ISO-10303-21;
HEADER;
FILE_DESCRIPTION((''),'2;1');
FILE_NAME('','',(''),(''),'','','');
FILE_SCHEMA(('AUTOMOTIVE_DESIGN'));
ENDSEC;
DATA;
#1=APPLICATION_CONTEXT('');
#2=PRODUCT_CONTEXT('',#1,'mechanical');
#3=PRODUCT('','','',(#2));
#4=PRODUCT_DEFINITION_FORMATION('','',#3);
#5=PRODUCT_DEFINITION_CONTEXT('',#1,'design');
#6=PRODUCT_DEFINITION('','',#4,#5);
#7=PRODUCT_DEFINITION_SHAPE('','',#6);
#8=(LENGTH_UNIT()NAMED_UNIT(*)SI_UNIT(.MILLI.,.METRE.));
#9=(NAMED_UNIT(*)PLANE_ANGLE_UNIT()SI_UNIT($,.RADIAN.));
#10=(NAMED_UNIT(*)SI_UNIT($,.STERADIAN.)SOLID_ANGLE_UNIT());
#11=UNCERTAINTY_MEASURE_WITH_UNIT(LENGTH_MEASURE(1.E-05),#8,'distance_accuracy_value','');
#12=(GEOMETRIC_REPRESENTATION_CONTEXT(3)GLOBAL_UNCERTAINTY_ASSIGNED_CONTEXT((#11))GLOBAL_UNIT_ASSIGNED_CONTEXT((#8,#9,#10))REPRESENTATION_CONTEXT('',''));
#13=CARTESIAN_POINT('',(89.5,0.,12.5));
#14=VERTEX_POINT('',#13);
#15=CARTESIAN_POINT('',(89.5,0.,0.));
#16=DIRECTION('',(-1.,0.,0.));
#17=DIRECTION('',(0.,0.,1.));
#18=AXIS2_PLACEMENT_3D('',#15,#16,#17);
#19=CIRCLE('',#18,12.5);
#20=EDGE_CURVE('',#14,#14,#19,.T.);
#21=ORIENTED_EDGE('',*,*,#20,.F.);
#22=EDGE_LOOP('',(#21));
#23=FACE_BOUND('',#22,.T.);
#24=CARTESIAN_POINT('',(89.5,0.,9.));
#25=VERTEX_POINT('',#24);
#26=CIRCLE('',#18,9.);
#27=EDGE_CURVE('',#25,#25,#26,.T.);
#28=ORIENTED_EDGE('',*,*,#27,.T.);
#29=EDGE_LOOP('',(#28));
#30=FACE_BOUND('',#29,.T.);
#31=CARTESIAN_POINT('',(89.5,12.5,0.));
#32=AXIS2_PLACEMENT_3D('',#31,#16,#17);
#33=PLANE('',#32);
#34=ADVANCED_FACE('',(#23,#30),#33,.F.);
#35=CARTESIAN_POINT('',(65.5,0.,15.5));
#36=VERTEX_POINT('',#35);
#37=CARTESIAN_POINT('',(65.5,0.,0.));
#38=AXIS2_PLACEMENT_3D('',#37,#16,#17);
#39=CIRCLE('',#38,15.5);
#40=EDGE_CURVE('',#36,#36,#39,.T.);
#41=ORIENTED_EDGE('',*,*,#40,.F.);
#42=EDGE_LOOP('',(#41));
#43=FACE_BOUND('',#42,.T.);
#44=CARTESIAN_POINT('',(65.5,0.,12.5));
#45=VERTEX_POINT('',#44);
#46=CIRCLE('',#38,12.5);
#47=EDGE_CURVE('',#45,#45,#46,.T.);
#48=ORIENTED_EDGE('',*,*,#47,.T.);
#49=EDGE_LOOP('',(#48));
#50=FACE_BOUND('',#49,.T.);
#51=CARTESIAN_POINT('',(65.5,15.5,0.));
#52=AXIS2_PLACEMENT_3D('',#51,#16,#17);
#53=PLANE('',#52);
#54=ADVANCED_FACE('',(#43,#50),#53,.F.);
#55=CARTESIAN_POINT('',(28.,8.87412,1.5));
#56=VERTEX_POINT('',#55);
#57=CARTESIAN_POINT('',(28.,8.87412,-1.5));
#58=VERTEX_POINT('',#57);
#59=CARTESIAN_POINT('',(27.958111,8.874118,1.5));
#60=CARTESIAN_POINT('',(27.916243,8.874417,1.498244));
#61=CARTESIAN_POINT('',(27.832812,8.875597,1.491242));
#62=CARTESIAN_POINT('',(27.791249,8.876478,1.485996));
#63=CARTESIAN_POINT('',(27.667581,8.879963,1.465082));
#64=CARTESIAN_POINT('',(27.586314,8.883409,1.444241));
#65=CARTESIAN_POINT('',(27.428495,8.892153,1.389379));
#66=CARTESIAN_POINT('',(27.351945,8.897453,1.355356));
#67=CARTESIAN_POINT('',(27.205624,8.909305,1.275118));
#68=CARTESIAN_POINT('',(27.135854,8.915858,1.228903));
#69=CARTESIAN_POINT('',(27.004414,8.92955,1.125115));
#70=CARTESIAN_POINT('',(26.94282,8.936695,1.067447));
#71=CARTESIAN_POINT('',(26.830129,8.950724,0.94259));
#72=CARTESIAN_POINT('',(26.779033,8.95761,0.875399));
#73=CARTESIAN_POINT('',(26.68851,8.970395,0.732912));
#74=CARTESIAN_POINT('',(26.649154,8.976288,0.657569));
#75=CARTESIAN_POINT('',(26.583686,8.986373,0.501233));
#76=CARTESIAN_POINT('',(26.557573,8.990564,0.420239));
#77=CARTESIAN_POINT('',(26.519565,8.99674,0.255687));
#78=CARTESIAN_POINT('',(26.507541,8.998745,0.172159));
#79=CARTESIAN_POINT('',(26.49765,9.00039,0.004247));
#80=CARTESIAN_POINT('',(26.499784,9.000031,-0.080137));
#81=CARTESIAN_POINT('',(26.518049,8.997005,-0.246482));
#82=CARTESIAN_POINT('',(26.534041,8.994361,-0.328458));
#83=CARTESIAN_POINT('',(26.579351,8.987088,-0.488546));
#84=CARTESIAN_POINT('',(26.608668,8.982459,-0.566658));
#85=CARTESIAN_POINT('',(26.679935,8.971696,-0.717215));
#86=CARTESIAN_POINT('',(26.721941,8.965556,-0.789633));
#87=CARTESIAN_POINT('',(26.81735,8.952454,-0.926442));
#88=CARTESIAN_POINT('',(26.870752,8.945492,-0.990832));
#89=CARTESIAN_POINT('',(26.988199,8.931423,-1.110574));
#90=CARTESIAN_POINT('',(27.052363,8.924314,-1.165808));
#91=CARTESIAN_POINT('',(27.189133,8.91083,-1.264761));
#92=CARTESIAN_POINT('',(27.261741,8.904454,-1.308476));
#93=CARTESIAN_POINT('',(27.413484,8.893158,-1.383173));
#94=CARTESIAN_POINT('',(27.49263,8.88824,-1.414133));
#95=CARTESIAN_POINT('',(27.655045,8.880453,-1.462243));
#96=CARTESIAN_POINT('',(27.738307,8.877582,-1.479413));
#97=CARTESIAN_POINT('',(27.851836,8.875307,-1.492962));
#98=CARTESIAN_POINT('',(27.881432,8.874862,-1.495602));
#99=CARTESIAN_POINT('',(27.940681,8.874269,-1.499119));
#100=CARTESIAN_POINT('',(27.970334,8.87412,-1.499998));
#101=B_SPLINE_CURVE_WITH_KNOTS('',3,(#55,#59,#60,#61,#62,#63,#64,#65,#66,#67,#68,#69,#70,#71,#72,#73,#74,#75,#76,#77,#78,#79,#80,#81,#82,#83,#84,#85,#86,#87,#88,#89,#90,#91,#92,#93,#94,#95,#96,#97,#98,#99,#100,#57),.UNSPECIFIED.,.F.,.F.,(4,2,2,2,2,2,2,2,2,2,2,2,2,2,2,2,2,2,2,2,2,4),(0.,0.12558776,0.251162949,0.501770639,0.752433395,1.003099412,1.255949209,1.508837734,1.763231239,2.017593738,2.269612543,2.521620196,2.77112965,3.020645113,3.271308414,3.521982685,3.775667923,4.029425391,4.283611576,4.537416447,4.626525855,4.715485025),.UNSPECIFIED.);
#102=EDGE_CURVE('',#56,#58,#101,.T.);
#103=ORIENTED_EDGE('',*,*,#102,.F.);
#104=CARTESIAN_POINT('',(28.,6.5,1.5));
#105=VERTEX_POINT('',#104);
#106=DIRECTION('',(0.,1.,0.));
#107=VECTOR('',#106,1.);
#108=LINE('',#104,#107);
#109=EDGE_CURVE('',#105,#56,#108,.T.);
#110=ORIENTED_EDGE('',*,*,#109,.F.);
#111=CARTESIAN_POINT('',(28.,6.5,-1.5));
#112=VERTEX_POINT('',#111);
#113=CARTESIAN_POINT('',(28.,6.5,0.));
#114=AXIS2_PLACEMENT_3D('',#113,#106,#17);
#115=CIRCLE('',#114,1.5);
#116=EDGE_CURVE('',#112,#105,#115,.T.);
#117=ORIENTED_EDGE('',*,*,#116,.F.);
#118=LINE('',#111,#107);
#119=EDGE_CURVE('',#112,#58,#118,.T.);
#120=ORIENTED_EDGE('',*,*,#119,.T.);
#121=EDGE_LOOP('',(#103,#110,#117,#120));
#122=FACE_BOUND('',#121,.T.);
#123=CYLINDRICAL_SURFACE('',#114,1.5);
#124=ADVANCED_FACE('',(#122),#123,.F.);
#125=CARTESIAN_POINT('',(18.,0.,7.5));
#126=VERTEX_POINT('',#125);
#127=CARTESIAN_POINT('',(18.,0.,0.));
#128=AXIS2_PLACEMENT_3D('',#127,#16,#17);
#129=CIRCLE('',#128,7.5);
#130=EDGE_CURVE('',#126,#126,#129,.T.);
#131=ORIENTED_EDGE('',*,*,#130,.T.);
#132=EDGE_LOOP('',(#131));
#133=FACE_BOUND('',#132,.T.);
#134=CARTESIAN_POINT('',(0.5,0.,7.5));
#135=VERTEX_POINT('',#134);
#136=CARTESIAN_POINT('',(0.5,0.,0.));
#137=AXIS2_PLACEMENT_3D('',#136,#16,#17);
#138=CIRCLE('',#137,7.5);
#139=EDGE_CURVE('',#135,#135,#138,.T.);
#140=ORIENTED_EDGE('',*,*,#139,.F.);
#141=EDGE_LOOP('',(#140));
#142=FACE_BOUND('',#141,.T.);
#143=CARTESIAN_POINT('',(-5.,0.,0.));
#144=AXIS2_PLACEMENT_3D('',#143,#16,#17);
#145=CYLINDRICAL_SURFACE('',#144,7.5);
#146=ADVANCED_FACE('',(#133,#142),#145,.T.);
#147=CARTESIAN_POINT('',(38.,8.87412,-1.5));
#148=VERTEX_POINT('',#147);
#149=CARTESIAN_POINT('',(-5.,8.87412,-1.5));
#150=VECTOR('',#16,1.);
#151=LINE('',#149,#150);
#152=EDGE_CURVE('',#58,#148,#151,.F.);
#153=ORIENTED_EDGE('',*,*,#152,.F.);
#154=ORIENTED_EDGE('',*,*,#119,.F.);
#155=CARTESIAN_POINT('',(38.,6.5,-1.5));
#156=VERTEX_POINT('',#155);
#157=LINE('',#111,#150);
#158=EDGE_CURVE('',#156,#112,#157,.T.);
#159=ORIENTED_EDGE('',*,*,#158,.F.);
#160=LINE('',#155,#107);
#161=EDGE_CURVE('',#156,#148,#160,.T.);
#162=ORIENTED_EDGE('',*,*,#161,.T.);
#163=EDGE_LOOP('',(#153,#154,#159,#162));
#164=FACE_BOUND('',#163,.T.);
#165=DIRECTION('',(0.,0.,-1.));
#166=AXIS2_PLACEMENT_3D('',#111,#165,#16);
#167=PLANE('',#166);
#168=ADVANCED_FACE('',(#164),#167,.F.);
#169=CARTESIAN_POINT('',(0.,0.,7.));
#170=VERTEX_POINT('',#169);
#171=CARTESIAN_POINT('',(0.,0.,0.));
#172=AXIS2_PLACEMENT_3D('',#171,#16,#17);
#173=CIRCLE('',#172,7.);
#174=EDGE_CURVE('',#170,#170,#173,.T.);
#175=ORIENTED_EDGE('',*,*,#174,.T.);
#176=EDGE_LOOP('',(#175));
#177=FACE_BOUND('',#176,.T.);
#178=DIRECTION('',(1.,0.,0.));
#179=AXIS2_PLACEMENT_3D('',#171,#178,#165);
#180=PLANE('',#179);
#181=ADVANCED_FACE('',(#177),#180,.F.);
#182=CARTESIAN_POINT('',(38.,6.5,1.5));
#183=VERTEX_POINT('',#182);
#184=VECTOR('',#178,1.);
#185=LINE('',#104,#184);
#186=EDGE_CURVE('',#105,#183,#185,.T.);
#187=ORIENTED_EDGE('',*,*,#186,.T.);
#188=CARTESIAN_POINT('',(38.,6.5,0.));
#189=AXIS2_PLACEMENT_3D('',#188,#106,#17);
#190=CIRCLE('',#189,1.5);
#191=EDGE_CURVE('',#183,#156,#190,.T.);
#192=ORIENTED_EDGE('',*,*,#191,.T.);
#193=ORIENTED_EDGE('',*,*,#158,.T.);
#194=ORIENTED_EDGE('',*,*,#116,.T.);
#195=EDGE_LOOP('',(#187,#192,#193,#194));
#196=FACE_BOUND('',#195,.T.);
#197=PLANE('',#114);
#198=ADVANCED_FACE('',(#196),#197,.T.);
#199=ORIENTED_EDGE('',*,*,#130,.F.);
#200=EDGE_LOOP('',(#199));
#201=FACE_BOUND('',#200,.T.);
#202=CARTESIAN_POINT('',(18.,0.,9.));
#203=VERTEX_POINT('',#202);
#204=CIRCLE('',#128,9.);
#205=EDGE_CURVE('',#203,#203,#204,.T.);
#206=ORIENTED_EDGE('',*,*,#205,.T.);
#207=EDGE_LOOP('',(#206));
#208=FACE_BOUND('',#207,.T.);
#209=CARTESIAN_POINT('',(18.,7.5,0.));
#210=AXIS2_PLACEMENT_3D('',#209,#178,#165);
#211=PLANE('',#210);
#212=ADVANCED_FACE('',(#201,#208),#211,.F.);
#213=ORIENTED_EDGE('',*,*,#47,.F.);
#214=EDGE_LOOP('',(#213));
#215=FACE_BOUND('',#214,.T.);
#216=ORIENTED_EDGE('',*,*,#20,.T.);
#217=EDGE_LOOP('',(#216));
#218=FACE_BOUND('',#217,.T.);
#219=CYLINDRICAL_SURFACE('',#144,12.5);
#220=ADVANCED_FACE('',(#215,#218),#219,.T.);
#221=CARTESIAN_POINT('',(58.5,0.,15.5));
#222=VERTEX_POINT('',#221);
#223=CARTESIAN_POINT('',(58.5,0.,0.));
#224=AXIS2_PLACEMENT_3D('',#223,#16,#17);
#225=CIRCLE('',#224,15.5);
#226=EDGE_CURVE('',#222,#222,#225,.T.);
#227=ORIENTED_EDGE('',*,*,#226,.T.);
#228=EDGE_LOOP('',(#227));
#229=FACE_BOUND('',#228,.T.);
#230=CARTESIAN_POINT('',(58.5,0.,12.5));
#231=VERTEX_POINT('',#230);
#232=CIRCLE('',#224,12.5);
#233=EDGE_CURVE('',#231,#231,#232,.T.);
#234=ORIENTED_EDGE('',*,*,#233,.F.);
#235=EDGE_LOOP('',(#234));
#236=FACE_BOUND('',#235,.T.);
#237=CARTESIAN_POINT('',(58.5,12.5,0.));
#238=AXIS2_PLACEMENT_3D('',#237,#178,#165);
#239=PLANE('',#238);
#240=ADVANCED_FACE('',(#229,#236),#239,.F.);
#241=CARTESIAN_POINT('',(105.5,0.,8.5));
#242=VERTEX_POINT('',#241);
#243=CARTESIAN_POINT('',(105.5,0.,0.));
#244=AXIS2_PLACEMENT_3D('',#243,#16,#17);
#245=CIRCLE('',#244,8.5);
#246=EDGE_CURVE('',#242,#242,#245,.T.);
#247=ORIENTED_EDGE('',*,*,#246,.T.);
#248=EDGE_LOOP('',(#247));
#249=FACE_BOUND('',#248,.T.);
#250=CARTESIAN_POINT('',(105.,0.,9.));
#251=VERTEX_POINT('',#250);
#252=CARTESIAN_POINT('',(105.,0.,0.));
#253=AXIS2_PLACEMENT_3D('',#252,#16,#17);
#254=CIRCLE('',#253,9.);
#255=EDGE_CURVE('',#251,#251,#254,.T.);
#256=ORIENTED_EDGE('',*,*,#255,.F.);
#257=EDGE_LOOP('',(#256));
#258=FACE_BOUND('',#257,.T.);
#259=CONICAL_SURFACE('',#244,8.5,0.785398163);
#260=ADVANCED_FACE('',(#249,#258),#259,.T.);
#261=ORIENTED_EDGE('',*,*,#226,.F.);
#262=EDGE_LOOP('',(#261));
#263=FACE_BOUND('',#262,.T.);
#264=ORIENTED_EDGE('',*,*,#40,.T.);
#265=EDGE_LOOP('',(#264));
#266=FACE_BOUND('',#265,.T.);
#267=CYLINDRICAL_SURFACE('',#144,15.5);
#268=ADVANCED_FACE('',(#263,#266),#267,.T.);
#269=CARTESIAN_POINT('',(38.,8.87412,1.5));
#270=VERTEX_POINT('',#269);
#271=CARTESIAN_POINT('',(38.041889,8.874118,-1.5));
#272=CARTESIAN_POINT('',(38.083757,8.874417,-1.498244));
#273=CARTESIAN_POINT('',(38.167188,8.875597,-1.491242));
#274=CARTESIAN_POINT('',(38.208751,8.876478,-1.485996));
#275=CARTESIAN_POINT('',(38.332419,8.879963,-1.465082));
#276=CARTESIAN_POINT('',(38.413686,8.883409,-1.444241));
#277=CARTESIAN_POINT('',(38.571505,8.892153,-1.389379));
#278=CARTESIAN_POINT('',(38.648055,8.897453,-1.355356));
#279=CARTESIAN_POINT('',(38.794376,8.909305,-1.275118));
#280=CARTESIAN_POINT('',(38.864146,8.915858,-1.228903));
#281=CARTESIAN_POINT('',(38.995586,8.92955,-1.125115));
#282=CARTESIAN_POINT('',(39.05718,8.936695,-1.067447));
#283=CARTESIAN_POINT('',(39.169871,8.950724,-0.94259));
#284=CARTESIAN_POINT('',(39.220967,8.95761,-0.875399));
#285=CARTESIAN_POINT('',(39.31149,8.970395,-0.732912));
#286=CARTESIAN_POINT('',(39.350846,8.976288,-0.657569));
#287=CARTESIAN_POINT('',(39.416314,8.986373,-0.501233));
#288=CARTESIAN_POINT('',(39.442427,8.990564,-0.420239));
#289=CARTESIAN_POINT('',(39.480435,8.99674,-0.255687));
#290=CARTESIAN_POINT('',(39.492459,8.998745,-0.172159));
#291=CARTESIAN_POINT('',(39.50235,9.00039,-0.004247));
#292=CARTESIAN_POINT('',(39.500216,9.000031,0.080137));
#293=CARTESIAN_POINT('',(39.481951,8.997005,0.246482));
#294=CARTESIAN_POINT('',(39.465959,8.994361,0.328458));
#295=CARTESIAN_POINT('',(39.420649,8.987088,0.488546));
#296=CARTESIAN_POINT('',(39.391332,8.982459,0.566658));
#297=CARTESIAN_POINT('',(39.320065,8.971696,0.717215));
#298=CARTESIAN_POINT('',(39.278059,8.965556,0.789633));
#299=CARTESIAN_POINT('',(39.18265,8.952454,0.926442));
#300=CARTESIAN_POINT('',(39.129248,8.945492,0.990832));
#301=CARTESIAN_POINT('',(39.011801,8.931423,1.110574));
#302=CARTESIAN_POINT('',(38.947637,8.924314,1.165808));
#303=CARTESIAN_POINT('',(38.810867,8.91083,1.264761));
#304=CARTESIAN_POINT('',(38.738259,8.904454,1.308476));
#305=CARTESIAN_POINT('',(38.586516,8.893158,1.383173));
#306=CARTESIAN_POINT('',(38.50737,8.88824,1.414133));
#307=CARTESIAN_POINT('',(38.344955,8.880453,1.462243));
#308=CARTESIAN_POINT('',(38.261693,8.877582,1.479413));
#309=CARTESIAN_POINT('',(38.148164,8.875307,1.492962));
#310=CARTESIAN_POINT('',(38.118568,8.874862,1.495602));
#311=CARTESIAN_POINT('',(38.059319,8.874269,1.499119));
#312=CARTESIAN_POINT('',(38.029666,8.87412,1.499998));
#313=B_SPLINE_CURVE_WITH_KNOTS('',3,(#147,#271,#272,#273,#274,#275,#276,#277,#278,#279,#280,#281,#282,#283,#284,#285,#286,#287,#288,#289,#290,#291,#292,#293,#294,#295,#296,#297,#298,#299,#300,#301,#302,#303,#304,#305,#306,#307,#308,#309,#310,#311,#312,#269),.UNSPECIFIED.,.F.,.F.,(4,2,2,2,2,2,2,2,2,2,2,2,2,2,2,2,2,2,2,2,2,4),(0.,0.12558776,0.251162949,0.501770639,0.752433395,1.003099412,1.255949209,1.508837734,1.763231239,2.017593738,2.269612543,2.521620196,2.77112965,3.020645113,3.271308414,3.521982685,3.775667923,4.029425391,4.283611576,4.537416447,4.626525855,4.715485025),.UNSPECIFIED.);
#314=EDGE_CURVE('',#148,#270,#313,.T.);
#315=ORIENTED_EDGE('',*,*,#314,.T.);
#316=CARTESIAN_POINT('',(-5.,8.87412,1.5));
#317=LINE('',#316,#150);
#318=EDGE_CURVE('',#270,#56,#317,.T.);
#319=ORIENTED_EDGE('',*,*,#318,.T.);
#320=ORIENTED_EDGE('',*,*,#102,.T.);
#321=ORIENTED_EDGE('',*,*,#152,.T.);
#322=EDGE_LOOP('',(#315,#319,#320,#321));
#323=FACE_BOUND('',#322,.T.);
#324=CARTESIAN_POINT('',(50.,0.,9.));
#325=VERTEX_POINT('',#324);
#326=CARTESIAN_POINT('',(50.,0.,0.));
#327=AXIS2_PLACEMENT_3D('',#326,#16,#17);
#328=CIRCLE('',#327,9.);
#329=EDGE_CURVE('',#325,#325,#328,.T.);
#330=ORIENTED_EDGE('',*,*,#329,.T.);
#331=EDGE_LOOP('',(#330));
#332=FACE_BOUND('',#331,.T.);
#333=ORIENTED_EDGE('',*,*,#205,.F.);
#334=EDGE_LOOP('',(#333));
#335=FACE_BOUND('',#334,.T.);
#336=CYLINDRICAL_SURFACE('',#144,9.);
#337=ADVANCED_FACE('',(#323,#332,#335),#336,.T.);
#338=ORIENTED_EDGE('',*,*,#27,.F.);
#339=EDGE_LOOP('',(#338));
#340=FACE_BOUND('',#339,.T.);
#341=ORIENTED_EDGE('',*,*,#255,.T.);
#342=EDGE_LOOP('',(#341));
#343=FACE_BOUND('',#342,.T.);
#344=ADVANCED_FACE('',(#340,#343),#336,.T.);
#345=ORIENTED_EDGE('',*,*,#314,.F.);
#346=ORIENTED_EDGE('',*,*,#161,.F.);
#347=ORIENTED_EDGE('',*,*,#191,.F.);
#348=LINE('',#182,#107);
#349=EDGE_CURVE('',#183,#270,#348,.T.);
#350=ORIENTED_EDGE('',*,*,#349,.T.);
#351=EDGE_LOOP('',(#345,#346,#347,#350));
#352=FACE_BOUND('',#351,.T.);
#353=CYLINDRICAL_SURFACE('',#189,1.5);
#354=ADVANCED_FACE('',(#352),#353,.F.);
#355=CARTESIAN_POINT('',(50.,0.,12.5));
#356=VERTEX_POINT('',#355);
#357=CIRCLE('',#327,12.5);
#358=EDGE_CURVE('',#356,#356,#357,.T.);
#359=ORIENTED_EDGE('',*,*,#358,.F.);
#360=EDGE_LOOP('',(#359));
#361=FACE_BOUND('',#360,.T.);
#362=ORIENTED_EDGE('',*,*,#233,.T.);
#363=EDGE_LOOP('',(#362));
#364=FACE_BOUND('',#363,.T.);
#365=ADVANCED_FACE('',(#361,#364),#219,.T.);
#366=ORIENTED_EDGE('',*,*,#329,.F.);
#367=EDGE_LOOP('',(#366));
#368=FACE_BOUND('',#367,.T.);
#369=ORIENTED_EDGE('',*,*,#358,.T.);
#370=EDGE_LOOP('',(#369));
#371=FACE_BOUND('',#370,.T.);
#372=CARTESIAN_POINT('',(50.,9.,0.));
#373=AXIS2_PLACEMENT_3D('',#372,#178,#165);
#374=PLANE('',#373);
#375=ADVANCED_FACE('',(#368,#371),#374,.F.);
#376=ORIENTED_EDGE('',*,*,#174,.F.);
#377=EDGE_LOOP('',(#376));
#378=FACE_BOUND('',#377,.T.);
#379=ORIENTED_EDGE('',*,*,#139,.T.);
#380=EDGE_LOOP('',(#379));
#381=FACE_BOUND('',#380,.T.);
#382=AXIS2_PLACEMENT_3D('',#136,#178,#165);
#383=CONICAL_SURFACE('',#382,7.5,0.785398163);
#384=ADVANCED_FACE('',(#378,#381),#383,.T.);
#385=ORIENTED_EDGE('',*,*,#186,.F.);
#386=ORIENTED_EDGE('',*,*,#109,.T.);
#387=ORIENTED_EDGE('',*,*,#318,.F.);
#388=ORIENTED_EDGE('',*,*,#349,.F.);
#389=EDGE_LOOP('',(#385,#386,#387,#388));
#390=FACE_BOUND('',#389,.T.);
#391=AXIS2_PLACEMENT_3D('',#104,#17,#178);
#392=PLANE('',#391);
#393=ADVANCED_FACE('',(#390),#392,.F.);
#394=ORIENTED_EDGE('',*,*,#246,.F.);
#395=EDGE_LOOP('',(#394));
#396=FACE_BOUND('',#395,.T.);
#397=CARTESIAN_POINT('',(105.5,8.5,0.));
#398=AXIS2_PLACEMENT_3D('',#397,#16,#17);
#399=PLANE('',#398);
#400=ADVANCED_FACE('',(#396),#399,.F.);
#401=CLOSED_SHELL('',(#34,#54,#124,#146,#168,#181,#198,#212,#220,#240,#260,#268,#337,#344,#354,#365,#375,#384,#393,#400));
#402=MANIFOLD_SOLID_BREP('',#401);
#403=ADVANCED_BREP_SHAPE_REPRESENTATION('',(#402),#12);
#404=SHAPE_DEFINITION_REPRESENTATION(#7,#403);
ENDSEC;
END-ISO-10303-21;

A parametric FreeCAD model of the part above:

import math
import FreeCAD as App
import Part
import Sketcher
Q = App.Units.Quantity


def add_polygon(sketch, points):
    """Adds a closed chain of lines whose ends are joined by coincident constraints."""
    first, n = sketch.GeometryCount, len(points)
    for a, b in zip(points, points[1:] + points[:1]):
        sketch.addGeometry(Part.LineSegment(App.Vector(*a, 0), App.Vector(*b, 0)), False)
    for i in range(n):
        sketch.addConstraint(Sketcher.Constraint("Coincident", first + i, 2, first + (i + 1) % n, 1))

doc = App.newDocument("Part")
params = doc.addObject("Spreadsheet::Sheet", "Params")
for row, (alias, value) in enumerate([
    ("sketch1_width", "24 mm"),
    ("sketch1_width2", "7 mm"),
    ("sketch1_width3", "32 mm"),
    ("sketch1_height", "3 mm"),
    ("sketch1_width4", "105.5 mm"),
    ("revolution_angle", "360 deg"),
    ("sketch2_radius", "1.5 mm"),
    ("sketch2_width", "10 mm"),
    ("pocket1_length", "2.5 mm"),
], start=1):
    params.set(f"A{row}", alias)
    params.set(f"B{row}", "=" + value)
    params.setAlias(f"B{row}", alias)

body = doc.addObject("PartDesign::Body", "Body")

# Sketch on XY plane
sketch1 = body.newObject("Sketcher::SketchObject", "Sketch")
sketch1.AttachmentSupport = (doc.getObject("XY_Plane"), [""])
sketch1.MapMode = "FlatFace"
add_polygon(sketch1, [(0, 7), (0, 0), (105.5, 0), (105.5, 8.5), (105, 9), (89.5, 9), (89.5, 12.5), (65.5, 12.5), (65.5, 15.5), (58.5, 15.5), (58.5, 12.5), (50, 12.5), (50, 9), (18, 9), (18, 7.5), (0.5, 7.5)])  # lines 0-15
sketch1.addConstraint(Sketcher.Constraint("Vertical", 0))
sketch1.addConstraint(Sketcher.Constraint("Horizontal", 1))
sketch1.addConstraint(Sketcher.Constraint("Vertical", 2))
sketch1.addConstraint(Sketcher.Constraint("Horizontal", 4))
sketch1.addConstraint(Sketcher.Constraint("Vertical", 5))
sketch1.addConstraint(Sketcher.Constraint("Horizontal", 6))
sketch1.addConstraint(Sketcher.Constraint("Vertical", 7))
sketch1.addConstraint(Sketcher.Constraint("Horizontal", 8))
sketch1.addConstraint(Sketcher.Constraint("Vertical", 9))
sketch1.addConstraint(Sketcher.Constraint("Horizontal", 10))
sketch1.addConstraint(Sketcher.Constraint("Vertical", 11))
sketch1.addConstraint(Sketcher.Constraint("Horizontal", 12))
sketch1.addConstraint(Sketcher.Constraint("Vertical", 13))
sketch1.addConstraint(Sketcher.Constraint("Horizontal", 14))
sketch1.addConstraint(Sketcher.Constraint("Coincident", 0, 2, -1, 1))
sketch1.addConstraint(Sketcher.Constraint("Perpendicular", 3, 15))
sketch1.addConstraint(Sketcher.Constraint("Horizontal", 6, 2, 9, 2))
sketch1.addConstraint(Sketcher.Constraint("Horizontal", 4, 2, 11, 2))
sketch1.addConstraint(Sketcher.Constraint("Equal", 8, 0))
sketch1.addConstraint(Sketcher.Constraint("Equal", 10, 2))
sketch1.addConstraint(Sketcher.Constraint("Equal", 3, 15))
sketch1.addConstraint(Sketcher.Constraint("DistanceX", 6, 2, 6, 1, 24.0))
sketch1.addConstraint(Sketcher.Constraint("DistanceX", 8, 2, 8, 1, 7.0))
sketch1.addConstraint(Sketcher.Constraint("DistanceX", 12, 2, 12, 1, 32.0))
sketch1.addConstraint(Sketcher.Constraint("DistanceY", 7, 1, 7, 2, 3.0))
sketch1.addConstraint(Sketcher.Constraint("Angle", 3, Q("135 deg")))
sketch1.addConstraint(Sketcher.Constraint("DistanceX", 1, 1, 1, 2, 105.5))
sketch1.addConstraint(Sketcher.Constraint("DistanceX", 4, 2, 4, 1, 15.5))
sketch1.addConstraint(Sketcher.Constraint("DistanceX", 10, 2, 10, 1, 8.5))
sketch1.addConstraint(Sketcher.Constraint("DistanceX", 14, 2, 14, 1, 17.5))
sketch1.addConstraint(Sketcher.Constraint("DistanceY", 5, 1, 5, 2, 3.5))
sketch1.setExpression("Constraints[37]", "Params.sketch1_width")
sketch1.setExpression("Constraints[38]", "Params.sketch1_width2")
sketch1.setExpression("Constraints[39]", "Params.sketch1_width3")
sketch1.setExpression("Constraints[40]", "Params.sketch1_height")
sketch1.setExpression("Constraints[42]", "Params.sketch1_width4")
revolution = body.newObject("PartDesign::Revolution", "Revolution")
revolution.Profile = sketch1
revolution.ReferenceAxis = (sketch1, ["H_Axis"])
revolution.setExpression("Angle", "Params.revolution_angle")

# Sketch on XZ plane
sketch2 = body.newObject("Sketcher::SketchObject", "Sketch001")
sketch2.AttachmentSupport = (doc.getObject("XZ_Plane"), [""])
sketch2.MapMode = "FlatFace"
sketch2.AttachmentOffset = App.Placement(App.Vector(0, 0, -9), App.Rotation())
sketch2.addGeometry(Part.LineSegment(App.Vector(38, -1.5, 0), App.Vector(28, -1.5, 0)), False)
sketch2.addGeometry(Part.ArcOfCircle(Part.Circle(App.Vector(28, 0, 0), App.Vector(0, 0, 1), 1.5), math.radians(90), math.radians(270)), False)
sketch2.addGeometry(Part.LineSegment(App.Vector(28, 1.5, 0), App.Vector(38, 1.5, 0)), False)
sketch2.addGeometry(Part.ArcOfCircle(Part.Circle(App.Vector(38, 0, 0), App.Vector(0, 0, 1), 1.5), math.radians(-90), math.radians(90)), False)
sketch2.addConstraint(Sketcher.Constraint("Tangent", 0, 2, 1, 2))
sketch2.addConstraint(Sketcher.Constraint("Tangent", 1, 1, 2, 1))
sketch2.addConstraint(Sketcher.Constraint("Tangent", 2, 2, 3, 2))
sketch2.addConstraint(Sketcher.Constraint("Tangent", 3, 1, 0, 1))
sketch2.addConstraint(Sketcher.Constraint("Horizontal", 0))
sketch2.addConstraint(Sketcher.Constraint("Horizontal", 2))
sketch2.addConstraint(Sketcher.Constraint("PointOnObject", 1, 3, -1))
sketch2.addConstraint(Sketcher.Constraint("Radius", 1, 1.5))
sketch2.addConstraint(Sketcher.Constraint("DistanceX", 0, 2, 0, 1, 10.0))
sketch2.addConstraint(Sketcher.Constraint("DistanceX", -1, 1, 1, 3, 28.0))
sketch2.setExpression("Constraints[7]", "Params.sketch2_radius")
sketch2.setExpression("Constraints[8]", "Params.sketch2_width")
pocket1 = body.newObject("PartDesign::Pocket", "Pocket")
pocket1.Profile = sketch2
pocket1.setExpression("Length", "Params.pocket1_length")
pocket1.Reversed = True

doc.recompute()
